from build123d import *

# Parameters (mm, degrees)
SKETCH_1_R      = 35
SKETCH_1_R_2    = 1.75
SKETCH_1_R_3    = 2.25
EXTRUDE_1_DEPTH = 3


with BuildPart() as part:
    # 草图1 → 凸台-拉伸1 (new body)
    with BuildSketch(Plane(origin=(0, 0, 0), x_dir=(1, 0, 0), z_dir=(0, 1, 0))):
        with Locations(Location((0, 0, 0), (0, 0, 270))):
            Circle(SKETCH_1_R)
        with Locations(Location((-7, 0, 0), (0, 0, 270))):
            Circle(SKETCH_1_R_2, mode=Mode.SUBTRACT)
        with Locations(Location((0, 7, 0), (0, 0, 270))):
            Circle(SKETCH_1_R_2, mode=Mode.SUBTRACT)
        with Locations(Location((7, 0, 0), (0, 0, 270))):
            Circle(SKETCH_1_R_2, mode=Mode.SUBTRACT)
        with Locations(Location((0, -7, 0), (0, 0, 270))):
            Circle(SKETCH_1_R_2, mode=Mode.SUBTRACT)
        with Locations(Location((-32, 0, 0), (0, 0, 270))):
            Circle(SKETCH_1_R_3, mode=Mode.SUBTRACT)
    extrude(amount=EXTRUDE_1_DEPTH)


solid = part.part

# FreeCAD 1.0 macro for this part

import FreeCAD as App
import Part
import Sketcher
from FreeCAD import Vector
Q = App.Units.Quantity

doc = App.newDocument("Part")
body = doc.addObject("PartDesign::Body", "Body")

# Sketch on XZ plane
sketch1 = body.newObject("Sketcher::SketchObject", "Sketch")
sketch1.AttachmentSupport = (doc.getObject("XZ_Plane"), [""])
sketch1.MapMode = "FlatFace"
sketch1.addGeometry(Part.Circle(Vector(0, 0, 0), Vector(0, 0, 1), 35), False)
sketch1.addGeometry(Part.Circle(Vector(-32, 0, 0), Vector(0, 0, 1), 2.2), False)
sketch1.addGeometry(Part.Circle(Vector(0, -7, 0), Vector(0, 0, 1), 1.8), False)
sketch1.addGeometry(Part.Circle(Vector(-7, 0, 0), Vector(0, 0, 1), 1.8), False)
sketch1.addGeometry(Part.Circle(Vector(7, 0, 0), Vector(0, 0, 1), 1.8), False)
sketch1.addGeometry(Part.Circle(Vector(0, 7, 0), Vector(0, 0, 1), 1.8), False)
sketch1.addConstraint(Sketcher.Constraint("Coincident", 0, 3, -1, 1))
sketch1.addConstraint(Sketcher.Constraint("Equal", 2, 3))
sketch1.addConstraint(Sketcher.Constraint("Equal", 3, 4))
sketch1.addConstraint(Sketcher.Constraint("Equal", 4, 5))
sketch1.addConstraint(Sketcher.Constraint("Symmetric", 3, 3, 4, 3, -1, 1))
sketch1.addConstraint(Sketcher.Constraint("Symmetric", 2, 3, 5, 3, -1, 1))
sketch1.addConstraint(Sketcher.Constraint("PointOnObject", 1, 3, -1))
sketch1.addConstraint(Sketcher.Constraint("PointOnObject", 2, 3, -2))
sketch1.addConstraint(Sketcher.Constraint("PointOnObject", 3, 3, -1))
sketch1.addConstraint(Sketcher.Constraint("Diameter", 0, Q("70 mm")))
sketch1.addConstraint(Sketcher.Constraint("Diameter", 1, Q("4.5 mm")))
sketch1.addConstraint(Sketcher.Constraint("Diameter", 2, Q("3.5 mm")))
sketch1.addConstraint(Sketcher.Constraint("DistanceX", 1, 3, -1, 1, Q("32 mm")))
sketch1.addConstraint(Sketcher.Constraint("DistanceY", 2, 3, -1, 1, Q("7 mm")))
sketch1.addConstraint(Sketcher.Constraint("DistanceX", 3, 3, -1, 1, Q("7 mm")))
pad1 = body.newObject("PartDesign::Pad", "Pad")
pad1.Profile = sketch1
pad1.Length = 3
pad1.Reversed = True

doc.recompute()
